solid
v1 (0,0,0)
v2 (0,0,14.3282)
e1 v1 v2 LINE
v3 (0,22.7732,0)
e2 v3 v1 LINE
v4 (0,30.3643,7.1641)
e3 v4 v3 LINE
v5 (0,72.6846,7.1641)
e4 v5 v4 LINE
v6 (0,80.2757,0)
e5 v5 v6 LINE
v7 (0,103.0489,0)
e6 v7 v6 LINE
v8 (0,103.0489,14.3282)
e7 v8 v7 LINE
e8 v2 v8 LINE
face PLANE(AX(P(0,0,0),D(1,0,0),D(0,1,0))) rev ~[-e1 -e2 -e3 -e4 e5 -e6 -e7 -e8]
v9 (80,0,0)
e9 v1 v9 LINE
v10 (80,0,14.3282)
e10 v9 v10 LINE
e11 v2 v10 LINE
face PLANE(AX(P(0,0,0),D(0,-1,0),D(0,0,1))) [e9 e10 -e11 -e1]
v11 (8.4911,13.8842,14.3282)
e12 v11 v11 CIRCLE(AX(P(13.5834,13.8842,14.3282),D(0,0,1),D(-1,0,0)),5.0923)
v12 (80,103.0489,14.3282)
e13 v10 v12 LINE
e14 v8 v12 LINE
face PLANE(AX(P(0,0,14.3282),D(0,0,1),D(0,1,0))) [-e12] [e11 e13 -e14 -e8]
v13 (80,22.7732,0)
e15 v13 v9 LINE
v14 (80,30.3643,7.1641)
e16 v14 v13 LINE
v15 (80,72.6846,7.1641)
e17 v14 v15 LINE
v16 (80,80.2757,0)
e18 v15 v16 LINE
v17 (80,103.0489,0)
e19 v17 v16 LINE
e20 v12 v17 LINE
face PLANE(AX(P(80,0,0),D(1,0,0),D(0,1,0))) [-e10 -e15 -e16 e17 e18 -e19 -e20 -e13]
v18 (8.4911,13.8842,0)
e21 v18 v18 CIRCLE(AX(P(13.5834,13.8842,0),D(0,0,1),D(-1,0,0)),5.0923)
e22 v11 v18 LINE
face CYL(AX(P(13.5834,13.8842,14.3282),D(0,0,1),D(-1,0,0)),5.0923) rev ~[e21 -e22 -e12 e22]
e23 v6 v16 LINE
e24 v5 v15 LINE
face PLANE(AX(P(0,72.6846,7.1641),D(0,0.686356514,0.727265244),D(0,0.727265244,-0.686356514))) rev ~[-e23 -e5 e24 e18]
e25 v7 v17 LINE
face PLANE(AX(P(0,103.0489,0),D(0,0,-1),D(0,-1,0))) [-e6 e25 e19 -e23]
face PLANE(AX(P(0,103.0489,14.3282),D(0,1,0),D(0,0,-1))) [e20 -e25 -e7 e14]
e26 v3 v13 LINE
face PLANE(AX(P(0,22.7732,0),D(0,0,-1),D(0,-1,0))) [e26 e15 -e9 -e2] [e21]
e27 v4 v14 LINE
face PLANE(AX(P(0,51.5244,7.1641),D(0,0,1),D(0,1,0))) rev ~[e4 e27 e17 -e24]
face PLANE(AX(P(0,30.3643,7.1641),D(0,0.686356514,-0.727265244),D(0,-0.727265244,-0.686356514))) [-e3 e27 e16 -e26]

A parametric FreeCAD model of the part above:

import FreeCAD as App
import Part
import Sketcher

V = App.Vector
Q = App.Units.Quantity


def add_polygon(sketch, points):
    """Adds a closed chain of lines whose ends are joined by coincident constraints."""
    first, n = sketch.GeometryCount, len(points)
    for a, b in zip(points, points[1:] + points[:1]):
        sketch.addGeometry(Part.LineSegment(App.Vector(*a, 0), App.Vector(*b, 0)), False)
    for i in range(n):
        sketch.addConstraint(Sketcher.Constraint("Coincident", first + i, 2, first + (i + 1) % n, 1))

doc = App.newDocument("Part")
body = doc.addObject("PartDesign::Body", "Body")

# Sketch on YZ plane
sketch1 = body.newObject("Sketcher::SketchObject", "Sketch")
sketch1.AttachmentSupport = (doc.getObject("YZ_Plane"), [""])
sketch1.MapMode = "FlatFace"
add_polygon(sketch1, [(0, 14), (0, 0), (23, 0), (30, 7), (73, 7), (80, 0), (103, 0), (103, 14)])  # lines 0-7
sketch1.addConstraint(Sketcher.Constraint("Vertical", 0))
sketch1.addConstraint(Sketcher.Constraint("Horizontal", 1))
sketch1.addConstraint(Sketcher.Constraint("Horizontal", 3))
sketch1.addConstraint(Sketcher.Constraint("Horizontal", 5))
sketch1.addConstraint(Sketcher.Constraint("Vertical", 6))
sketch1.addConstraint(Sketcher.Constraint("Horizontal", 7))
sketch1.addConstraint(Sketcher.Constraint("Coincident", 0, 2, -1, 1))
sketch1.addConstraint(Sketcher.Constraint("PointOnObject", 4, 2, -1))
sketch1.addConstraint(Sketcher.Constraint("Equal", 1, 5))
sketch1.addConstraint(Sketcher.Constraint("Equal", 2, 4))
sketch1.addConstraint(Sketcher.Constraint("DistanceX", 7, 2, 7, 1, Q("103.049 mm")))
sketch1.addConstraint(Sketcher.Constraint("DistanceX", 1, 1, 1, 2, Q("22.7732 mm")))
sketch1.addConstraint(Sketcher.Constraint("DistanceX", 3, 1, 3, 2, Q("42.3203 mm")))
sketch1.addConstraint(Sketcher.Constraint("DistanceY", 0, 2, 0, 1, Q("14.3282 mm")))
sketch1.addConstraint(Sketcher.Constraint("DistanceY", -1, 1, 2, 2, Q("7.164 mm")))
pad1 = body.newObject("PartDesign::Pad", "Pad")
pad1.Profile = sketch1
pad1.Length = 80

# Sketch on XY plane
sketch2 = body.newObject("Sketcher::SketchObject", "Sketch001")
sketch2.AttachmentSupport = (doc.getObject("XY_Plane"), [""])
sketch2.MapMode = "FlatFace"
sketch2.AttachmentOffset = App.Placement(V(0, 0, 14.3282), App.Rotation())
sketch2.addGeometry(Part.Circle(V(14, 14, 0), V(0, 0, 1), 5), False)
sketch2.addConstraint(Sketcher.Constraint("Diameter", 0, Q("10.1846 mm")))
sketch2.addConstraint(Sketcher.Constraint("DistanceX", -1, 1, 0, 3, Q("13.5834 mm")))
sketch2.addConstraint(Sketcher.Constraint("DistanceY", -1, 1, 0, 3, Q("13.8842 mm")))
pocket1 = body.newObject("PartDesign::Pocket", "Pocket")
pocket1.Profile = sketch2
pocket1.Type = "ThroughAll"

doc.recompute()
